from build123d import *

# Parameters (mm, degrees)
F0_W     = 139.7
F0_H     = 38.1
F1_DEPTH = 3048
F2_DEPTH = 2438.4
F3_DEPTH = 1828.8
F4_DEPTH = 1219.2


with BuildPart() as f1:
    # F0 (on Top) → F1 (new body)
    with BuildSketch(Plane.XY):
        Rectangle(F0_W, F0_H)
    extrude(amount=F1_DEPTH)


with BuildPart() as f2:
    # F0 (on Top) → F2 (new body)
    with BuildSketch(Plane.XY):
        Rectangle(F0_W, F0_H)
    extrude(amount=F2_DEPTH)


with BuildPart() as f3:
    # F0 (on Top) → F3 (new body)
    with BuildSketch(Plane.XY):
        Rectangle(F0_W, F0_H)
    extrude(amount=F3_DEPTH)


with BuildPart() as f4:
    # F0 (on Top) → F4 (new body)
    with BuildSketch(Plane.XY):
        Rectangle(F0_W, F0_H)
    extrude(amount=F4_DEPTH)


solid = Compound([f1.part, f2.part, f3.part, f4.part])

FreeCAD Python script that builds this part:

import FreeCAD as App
import Part
import Sketcher
from FreeCAD import Vector
Q = App.Units.Quantity

doc = App.newDocument("Part")
body = doc.addObject("PartDesign::Body", "Body")

sketch1 = body.newObject("Sketcher::SketchObject", "Sketch")
sketch1.AttachmentSupport = (doc.getObject("XY_Plane"), [""])
sketch1.MapMode = "FlatFace"
sketch1.addGeometry([
    Part.LineSegment(Vector(-69.85, 19.05, 0), Vector(-69.85, -19.05, 0)),
    Part.LineSegment(Vector(-69.85, -19.05, 0), Vector(69.85, -19.05, 0)),
    Part.LineSegment(Vector(69.85, -19.05, 0), Vector(69.85, 19.05, 0)),
    Part.LineSegment(Vector(69.85, 19.05, 0), Vector(-69.85, 19.05, 0)),
], False)
sketch1.addConstraint([
    Sketcher.Constraint("Coincident", 0, 2, 1, 1),
    Sketcher.Constraint("Coincident", 1, 2, 2, 1),
    Sketcher.Constraint("Coincident", 2, 2, 3, 1),
    Sketcher.Constraint("Coincident", 3, 2, 0, 1),
    Sketcher.Constraint("Vertical", 0),
    Sketcher.Constraint("Horizontal", 1),
    Sketcher.Constraint("Vertical", 2),
    Sketcher.Constraint("Horizontal", 3),
    Sketcher.Constraint("Symmetric", 0, 2, 2, 2, -1, 1),
    Sketcher.Constraint("DistanceX", 1, 1, 1, 2, Q("5.5 in")),
    Sketcher.Constraint("DistanceY", 0, 2, 0, 1, Q("1.5 in")),
])
pad1 = body.newObject("PartDesign::Pad", "Pad")
pad1.Profile = sketch1
pad1.Length = Q("120 in")
body2 = doc.addObject("PartDesign::Body", "Body001")

sketch2 = body2.newObject("Sketcher::SketchObject", "Sketch001")
sketch2.AttachmentSupport = (doc.getObject("XY_Plane001"), [""])
sketch2.MapMode = "FlatFace"
sketch2.addGeometry([
    Part.LineSegment(Vector(-69.85, 19.05, 0), Vector(-69.85, -19.05, 0)),
    Part.LineSegment(Vector(-69.85, -19.05, 0), Vector(69.85, -19.05, 0)),
    Part.LineSegment(Vector(69.85, -19.05, 0), Vector(69.85, 19.05, 0)),
    Part.LineSegment(Vector(69.85, 19.05, 0), Vector(-69.85, 19.05, 0)),
], False)
sketch2.addConstraint([
    Sketcher.Constraint("Coincident", 0, 2, 1, 1),
    Sketcher.Constraint("Coincident", 1, 2, 2, 1),
    Sketcher.Constraint("Coincident", 2, 2, 3, 1),
    Sketcher.Constraint("Coincident", 3, 2, 0, 1),
    Sketcher.Constraint("Vertical", 0),
    Sketcher.Constraint("Horizontal", 1),
    Sketcher.Constraint("Vertical", 2),
    Sketcher.Constraint("Horizontal", 3),
    Sketcher.Constraint("Symmetric", 0, 2, 2, 2, -1, 1),
    Sketcher.Constraint("DistanceX", 1, 1, 1, 2, Q("5.5 in")),
    Sketcher.Constraint("DistanceY", 0, 2, 0, 1, Q("1.5 in")),
])
pad2 = body2.newObject("PartDesign::Pad", "Pad001")
pad2.Profile = sketch2
pad2.Length = Q("96 in")
body3 = doc.addObject("PartDesign::Body", "Body002")

sketch3 = body3.newObject("Sketcher::SketchObject", "Sketch002")
sketch3.AttachmentSupport = (doc.getObject("XY_Plane002"), [""])
sketch3.MapMode = "FlatFace"
sketch3.addGeometry([
    Part.LineSegment(Vector(-69.85, 19.05, 0), Vector(-69.85, -19.05, 0)),
    Part.LineSegment(Vector(-69.85, -19.05, 0), Vector(69.85, -19.05, 0)),
    Part.LineSegment(Vector(69.85, -19.05, 0), Vector(69.85, 19.05, 0)),
    Part.LineSegment(Vector(69.85, 19.05, 0), Vector(-69.85, 19.05, 0)),
], False)
sketch3.addConstraint([
    Sketcher.Constraint("Coincident", 0, 2, 1, 1),
    Sketcher.Constraint("Coincident", 1, 2, 2, 1),
    Sketcher.Constraint("Coincident", 2, 2, 3, 1),
    Sketcher.Constraint("Coincident", 3, 2, 0, 1),
    Sketcher.Constraint("Vertical", 0),
    Sketcher.Constraint("Horizontal", 1),
    Sketcher.Constraint("Vertical", 2),
    Sketcher.Constraint("Horizontal", 3),
    Sketcher.Constraint("Symmetric", 0, 2, 2, 2, -1, 1),
    Sketcher.Constraint("DistanceX", 1, 1, 1, 2, Q("5.5 in")),
    Sketcher.Constraint("DistanceY", 0, 2, 0, 1, Q("1.5 in")),
])
pad3 = body3.newObject("PartDesign::Pad", "Pad002")
pad3.Profile = sketch3
pad3.Length = Q("72 in")
body4 = doc.addObject("PartDesign::Body", "Body003")

sketch4 = body4.newObject("Sketcher::SketchObject", "Sketch003")
sketch4.AttachmentSupport = (doc.getObject("XY_Plane003"), [""])
sketch4.MapMode = "FlatFace"
sketch4.addGeometry([
    Part.LineSegment(Vector(-69.85, 19.05, 0), Vector(-69.85, -19.05, 0)),
    Part.LineSegment(Vector(-69.85, -19.05, 0), Vector(69.85, -19.05, 0)),
    Part.LineSegment(Vector(69.85, -19.05, 0), Vector(69.85, 19.05, 0)),
    Part.LineSegment(Vector(69.85, 19.05, 0), Vector(-69.85, 19.05, 0)),
], False)
sketch4.addConstraint([
    Sketcher.Constraint("Coincident", 0, 2, 1, 1),
    Sketcher.Constraint("Coincident", 1, 2, 2, 1),
    Sketcher.Constraint("Coincident", 2, 2, 3, 1),
    Sketcher.Constraint("Coincident", 3, 2, 0, 1),
    Sketcher.Constraint("Vertical", 0),
    Sketcher.Constraint("Horizontal", 1),
    Sketcher.Constraint("Vertical", 2),
    Sketcher.Constraint("Horizontal", 3),
    Sketcher.Constraint("Symmetric", 0, 2, 2, 2, -1, 1),
    Sketcher.Constraint("DistanceX", 1, 1, 1, 2, Q("5.5 in")),
    Sketcher.Constraint("DistanceY", 0, 2, 0, 1, Q("1.5 in")),
])
pad4 = body4.newObject("PartDesign::Pad", "Pad003")
pad4.Profile = sketch4
pad4.Length = Q("48 in")

doc.recompute()
